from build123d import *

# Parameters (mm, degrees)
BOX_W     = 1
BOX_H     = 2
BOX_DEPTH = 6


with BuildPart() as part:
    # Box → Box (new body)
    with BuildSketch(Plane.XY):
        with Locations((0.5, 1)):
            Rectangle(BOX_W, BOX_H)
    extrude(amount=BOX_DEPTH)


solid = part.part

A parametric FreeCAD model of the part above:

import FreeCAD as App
import Part
import Sketcher


def add_polygon(sketch, points):
    """Adds a closed chain of lines whose ends are joined by coincident constraints."""
    first, n = sketch.GeometryCount, len(points)
    for a, b in zip(points, points[1:] + points[:1]):
        sketch.addGeometry(Part.LineSegment(App.Vector(*a, 0), App.Vector(*b, 0)), False)
    for i in range(n):
        sketch.addConstraint(Sketcher.Constraint("Coincident", first + i, 2, first + (i + 1) % n, 1))

doc = App.newDocument("Part")
body = doc.addObject("PartDesign::Body", "Body")

# Sketch on XY plane
sketch1 = body.newObject("Sketcher::SketchObject", "Sketch")
sketch1.AttachmentSupport = (doc.getObject("XY_Plane"), [""])
sketch1.MapMode = "FlatFace"
add_polygon(sketch1, [(0, 2), (0, 0), (1, 0), (1, 2)])  # lines 0-3
sketch1.addConstraint(Sketcher.Constraint("Vertical", 0))
sketch1.addConstraint(Sketcher.Constraint("Horizontal", 1))
sketch1.addConstraint(Sketcher.Constraint("Vertical", 2))
sketch1.addConstraint(Sketcher.Constraint("Horizontal", 3))
sketch1.addConstraint(Sketcher.Constraint("Coincident", 0, 2, -1, 1))
sketch1.addConstraint(Sketcher.Constraint("DistanceX", 1, 1, 1, 2, 1.0))
sketch1.addConstraint(Sketcher.Constraint("DistanceY", 0, 2, 0, 1, 2.0))
pad1 = body.newObject("PartDesign::Pad", "Pad")
pad1.Profile = sketch1
pad1.Length = 6

doc.recompute()
